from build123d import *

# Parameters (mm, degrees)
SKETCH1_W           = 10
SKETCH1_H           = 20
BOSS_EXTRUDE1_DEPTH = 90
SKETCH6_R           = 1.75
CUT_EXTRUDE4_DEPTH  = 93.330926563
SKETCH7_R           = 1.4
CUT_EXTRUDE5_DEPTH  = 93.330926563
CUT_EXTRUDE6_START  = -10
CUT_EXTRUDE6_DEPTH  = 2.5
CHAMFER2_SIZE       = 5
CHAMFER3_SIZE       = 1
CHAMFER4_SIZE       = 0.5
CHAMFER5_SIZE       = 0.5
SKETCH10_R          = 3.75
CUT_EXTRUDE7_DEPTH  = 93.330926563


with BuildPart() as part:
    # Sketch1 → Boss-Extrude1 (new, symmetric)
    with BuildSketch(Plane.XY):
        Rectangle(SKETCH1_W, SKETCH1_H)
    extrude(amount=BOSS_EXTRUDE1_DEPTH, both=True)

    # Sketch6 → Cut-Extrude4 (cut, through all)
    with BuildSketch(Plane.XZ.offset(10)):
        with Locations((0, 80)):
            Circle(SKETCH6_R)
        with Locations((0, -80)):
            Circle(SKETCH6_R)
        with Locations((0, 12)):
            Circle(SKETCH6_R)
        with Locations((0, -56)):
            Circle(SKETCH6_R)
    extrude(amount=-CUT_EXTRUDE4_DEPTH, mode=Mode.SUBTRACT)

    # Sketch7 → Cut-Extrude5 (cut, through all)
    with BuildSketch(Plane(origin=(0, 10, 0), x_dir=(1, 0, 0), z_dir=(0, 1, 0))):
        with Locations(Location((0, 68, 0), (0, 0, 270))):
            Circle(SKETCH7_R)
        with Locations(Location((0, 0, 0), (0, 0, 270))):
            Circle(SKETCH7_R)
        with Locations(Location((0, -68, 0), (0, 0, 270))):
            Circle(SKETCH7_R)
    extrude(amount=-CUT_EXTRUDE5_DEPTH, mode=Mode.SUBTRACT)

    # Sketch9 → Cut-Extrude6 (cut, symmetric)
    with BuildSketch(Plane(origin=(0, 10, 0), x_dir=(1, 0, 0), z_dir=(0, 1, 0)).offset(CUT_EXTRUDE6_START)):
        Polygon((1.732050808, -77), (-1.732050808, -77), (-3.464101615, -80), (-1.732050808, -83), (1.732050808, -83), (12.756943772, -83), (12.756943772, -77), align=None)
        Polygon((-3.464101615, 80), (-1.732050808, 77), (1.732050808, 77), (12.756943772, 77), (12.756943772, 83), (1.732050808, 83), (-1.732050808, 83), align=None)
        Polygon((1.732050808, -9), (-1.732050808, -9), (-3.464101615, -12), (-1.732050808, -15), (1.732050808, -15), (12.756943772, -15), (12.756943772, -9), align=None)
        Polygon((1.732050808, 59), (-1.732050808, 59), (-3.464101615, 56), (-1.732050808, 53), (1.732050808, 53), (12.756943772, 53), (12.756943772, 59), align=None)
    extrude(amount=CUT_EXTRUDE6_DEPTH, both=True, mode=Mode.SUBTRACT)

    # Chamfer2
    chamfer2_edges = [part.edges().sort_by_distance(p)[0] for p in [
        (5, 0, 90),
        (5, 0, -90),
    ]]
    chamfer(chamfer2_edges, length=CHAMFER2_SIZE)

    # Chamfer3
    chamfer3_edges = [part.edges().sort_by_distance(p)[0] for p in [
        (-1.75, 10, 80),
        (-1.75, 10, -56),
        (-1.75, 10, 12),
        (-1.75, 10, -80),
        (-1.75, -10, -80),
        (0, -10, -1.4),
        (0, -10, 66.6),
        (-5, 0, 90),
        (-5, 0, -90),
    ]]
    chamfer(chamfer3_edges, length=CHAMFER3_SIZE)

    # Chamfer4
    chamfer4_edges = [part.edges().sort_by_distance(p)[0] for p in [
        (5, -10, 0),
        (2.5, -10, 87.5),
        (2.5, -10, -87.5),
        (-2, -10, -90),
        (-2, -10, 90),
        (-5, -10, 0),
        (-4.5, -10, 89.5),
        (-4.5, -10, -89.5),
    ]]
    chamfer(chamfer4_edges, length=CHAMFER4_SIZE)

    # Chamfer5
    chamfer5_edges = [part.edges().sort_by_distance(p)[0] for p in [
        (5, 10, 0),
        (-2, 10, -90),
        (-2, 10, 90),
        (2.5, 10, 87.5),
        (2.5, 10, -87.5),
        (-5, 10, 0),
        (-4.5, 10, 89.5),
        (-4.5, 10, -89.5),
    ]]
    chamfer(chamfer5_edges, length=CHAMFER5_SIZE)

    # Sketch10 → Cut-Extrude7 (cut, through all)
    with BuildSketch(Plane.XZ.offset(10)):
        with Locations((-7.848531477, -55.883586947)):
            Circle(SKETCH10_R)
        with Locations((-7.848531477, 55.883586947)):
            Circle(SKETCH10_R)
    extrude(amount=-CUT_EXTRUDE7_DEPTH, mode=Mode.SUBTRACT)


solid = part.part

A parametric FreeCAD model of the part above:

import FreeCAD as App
import Part
import Sketcher

V = App.Vector
Q = App.Units.Quantity


def edges_at(feature, points):
    """Names of the edges that pass closest to the given points."""
    edges = feature.Shape.Edges
    near = lambda p: min(range(len(edges)), key=lambda i: edges[i].distToShape(Part.Vertex(*p))[0])
    return sorted({f"Edge{near(p) + 1}" for p in points})


def add_polygon(sketch, points):
    """Adds a closed chain of lines whose ends are joined by coincident constraints."""
    first, n = sketch.GeometryCount, len(points)
    for a, b in zip(points, points[1:] + points[:1]):
        sketch.addGeometry(Part.LineSegment(App.Vector(*a, 0), App.Vector(*b, 0)), False)
    for i in range(n):
        sketch.addConstraint(Sketcher.Constraint("Coincident", first + i, 2, first + (i + 1) % n, 1))

doc = App.newDocument("Part")
params = doc.addObject("Spreadsheet::Sheet", "Params")
for row, (alias, value) in enumerate([
    ("sketch1_width", "10 mm"),
    ("sketch1_height", "20 mm"),
    ("pad1_length", "180 mm"),
    ("sketch2_diameter", "3.5 mm"),
    ("sketch3_diameter", "2.8 mm"),
    ("sketch4_height", "6 mm"),
    ("pocket3_length", "5 mm"),
    ("chamfer_size", "5 mm"),
    ("chamfer2_size", "1 mm"),
    ("chamfer3_size", "0.5 mm"),
    ("chamfer4_size", "0.5 mm"),
    ("sketch5_diameter", "7.5 mm"),
], start=1):
    params.set(f"A{row}", alias)
    params.set(f"B{row}", "=" + value)
    params.setAlias(f"B{row}", alias)

body = doc.addObject("PartDesign::Body", "Body")

# Sketch on XY plane
sketch1 = body.newObject("Sketcher::SketchObject", "Sketch")
sketch1.AttachmentSupport = (doc.getObject("XY_Plane"), [""])
sketch1.MapMode = "FlatFace"
add_polygon(sketch1, [(-5, 10), (-5, -10), (5, -10), (5, 10)])  # lines 0-3
sketch1.addConstraint([
    Sketcher.Constraint("Vertical", 0),
    Sketcher.Constraint("Horizontal", 1),
    Sketcher.Constraint("Vertical", 2),
    Sketcher.Constraint("Horizontal", 3),
    Sketcher.Constraint("Symmetric", 0, 2, 2, 2, -1, 1),
    Sketcher.Constraint("DistanceX", 1, 1, 1, 2, Q("10 mm")),
    Sketcher.Constraint("DistanceY", 0, 2, 0, 1, Q("20 mm")),
])
sketch1.setExpression("Constraints[9]", "Params.sketch1_width")
sketch1.setExpression("Constraints[10]", "Params.sketch1_height")
pad1 = body.newObject("PartDesign::Pad", "Pad")
pad1.Profile = sketch1
pad1.setExpression("Length", "Params.pad1_length")
pad1.Midplane = True

# Sketch on XZ plane
sketch2 = body.newObject("Sketcher::SketchObject", "Sketch001")
sketch2.AttachmentSupport = (doc.getObject("XZ_Plane"), [""])
sketch2.MapMode = "FlatFace"
sketch2.AttachmentOffset = App.Placement(V(0, 0, 10), App.Rotation())
sketch2.addGeometry([
    Part.Circle(V(0, 80, 0), V(0, 0, 1), 1.8),
    Part.Circle(V(0, -80, 0), V(0, 0, 1), 1.8),
    Part.Circle(V(0, 12, 0), V(0, 0, 1), 1.8),
    Part.Circle(V(0, -56, 0), V(0, 0, 1), 1.8),
], False)
sketch2.addConstraint([
    Sketcher.Constraint("Equal", 0, 1),
    Sketcher.Constraint("Equal", 1, 2),
    Sketcher.Constraint("Equal", 2, 3),
    Sketcher.Constraint("Symmetric", 0, 3, 1, 3, -1, 1),
    Sketcher.Constraint("PointOnObject", 0, 3, -2),
    Sketcher.Constraint("PointOnObject", 2, 3, -2),
    Sketcher.Constraint("PointOnObject", 3, 3, -2),
    Sketcher.Constraint("Diameter", 0, Q("3.5 mm")),
    Sketcher.Constraint("DistanceY", -1, 1, 0, 3, Q("80 mm")),
    Sketcher.Constraint("DistanceY", -1, 1, 2, 3, Q("12 mm")),
    Sketcher.Constraint("DistanceY", 3, 3, -1, 1, Q("56 mm")),
])
sketch2.setExpression("Constraints[7]", "Params.sketch2_diameter")
pocket1 = body.newObject("PartDesign::Pocket", "Pocket")
pocket1.Profile = sketch2
pocket1.Type = "ThroughAll"

# Sketch on XZ plane
sketch3 = body.newObject("Sketcher::SketchObject", "Sketch002")
sketch3.AttachmentSupport = (doc.getObject("XZ_Plane"), [""])
sketch3.MapMode = "FlatFace"
sketch3.AttachmentOffset = App.Placement(V(0, 0, -10), App.Rotation())
sketch3.addGeometry([
    Part.Circle(V(0, -68, 0), V(0, 0, 1), 1.4),
    Part.Circle(V(0, 0, 0), V(0, 0, 1), 1.4),
    Part.Circle(V(0, 68, 0), V(0, 0, 1), 1.4),
], False)
sketch3.addConstraint([
    Sketcher.Constraint("Coincident", 1, 3, -1, 1),
    Sketcher.Constraint("Equal", 0, 1),
    Sketcher.Constraint("Equal", 1, 2),
    Sketcher.Constraint("Symmetric", 0, 3, 2, 3, -1, 1),
    Sketcher.Constraint("PointOnObject", 0, 3, -2),
    Sketcher.Constraint("Diameter", 0, Q("2.8 mm")),
    Sketcher.Constraint("DistanceY", 0, 3, -1, 1, Q("68 mm")),
])
sketch3.setExpression("Constraints[5]", "Params.sketch3_diameter")
pocket2 = body.newObject("PartDesign::Pocket", "Pocket001")
pocket2.Profile = sketch3
pocket2.Type = "ThroughAll"
pocket2.Reversed = True

# Sketch on XZ plane
sketch4 = body.newObject("Sketcher::SketchObject", "Sketch003")
sketch4.AttachmentSupport = (doc.getObject("XZ_Plane"), [""])
sketch4.MapMode = "FlatFace"
add_polygon(sketch4, [(-1.7, 77), (-3.5, 80), (-1.7, 83), (12.8, 83), (12.8, 77)])  # lines 0-4
add_polygon(sketch4, [(-3.5, -80), (-1.7, -77), (12.8, -77), (12.8, -83), (-1.7, -83)])  # lines 5-9
add_polygon(sketch4, [(-1.7, 9), (-3.5, 12), (-1.7, 15), (12.8, 15), (12.8, 9)])  # lines 10-14
add_polygon(sketch4, [(-1.7, -59), (-3.5, -56), (-1.7, -53), (12.8, -53), (12.8, -59)])  # lines 15-19
sketch4.addConstraint([
    Sketcher.Constraint("Horizontal", 2),
    Sketcher.Constraint("Vertical", 3),
    Sketcher.Constraint("Horizontal", 4),
    Sketcher.Constraint("Horizontal", 6),
    Sketcher.Constraint("Vertical", 7),
    Sketcher.Constraint("Horizontal", 8),
    Sketcher.Constraint("Horizontal", 12),
    Sketcher.Constraint("Vertical", 13),
    Sketcher.Constraint("Horizontal", 14),
    Sketcher.Constraint("Horizontal", 17),
    Sketcher.Constraint("Vertical", 18),
    Sketcher.Constraint("Horizontal", 19),
    Sketcher.Constraint("Symmetric", 4, 2, 5, 2, -1),
    Sketcher.Constraint("Symmetric", 2, 2, 7, 2, -1),
    Sketcher.Constraint("Symmetric", 0, 2, 9, 2, -1),
    Sketcher.Constraint("Parallel", 1, 5),
    Sketcher.Constraint("Parallel", 0, 9),
    Sketcher.Constraint("Parallel", 9, 10),
    Sketcher.Constraint("Parallel", 5, 11),
    Sketcher.Constraint("Parallel", 10, 15),
    Sketcher.Constraint("Parallel", 11, 16),
    Sketcher.Constraint("Vertical", 1, 2, 4, 2),
    Sketcher.Constraint("Vertical", 9, 2, 10, 2),
    Sketcher.Constraint("Vertical", 8, 2, 11, 2),
    Sketcher.Constraint("Vertical", 7, 2, 12, 2),
    Sketcher.Constraint("Vertical", 11, 2, 14, 2),
    Sketcher.Constraint("Vertical", 10, 2, 15, 2),
    Sketcher.Constraint("Vertical", 14, 2, 16, 2),
    Sketcher.Constraint("Vertical", 13, 2, 17, 2),
    Sketcher.Constraint("Vertical", 16, 2, 19, 2),
    Sketcher.Constraint("DistanceY", 3, 2, 3, 1, Q("6 mm")),
    Sketcher.Constraint("Angle", 0, Q("120 deg")),
    Sketcher.Constraint("DistanceY", -1, 1, 0, 2, Q("80 mm")),
    Sketcher.Constraint("DistanceY", -1, 1, 10, 2, Q("12 mm")),
    Sketcher.Constraint("DistanceY", 15, 2, -1, 1, Q("56 mm")),
    Sketcher.Constraint("DistanceX", 0, 2, -1, 1, Q("3.464102 mm")),
    Sketcher.Constraint("DistanceX", 2, 1, 2, 2, Q("14.488995 mm")),
])
sketch4.setExpression("Constraints[50]", "Params.sketch4_height")
pocket3 = body.newObject("PartDesign::Pocket", "Pocket002")
pocket3.Profile = sketch4
pocket3.setExpression("Length", "Params.pocket3_length")
pocket3.Midplane = True
doc.recompute()

chamfer = body.newObject("PartDesign::Chamfer", "Chamfer")
chamfer.Base = (pocket3, edges_at(pocket3, [(5, 0, 90), (5, 0, -90)]))
chamfer.setExpression("Size", "Params.chamfer_size")
doc.recompute()

chamfer2 = body.newObject("PartDesign::Chamfer", "Chamfer001")
chamfer2.Base = (chamfer, edges_at(chamfer, [
    (-1.75, 10, 80),
    (-1.75, 10, -56),
    (-1.75, 10, 12),
    (-1.75, 10, -80),
    (-1.75, -10, -80),
    (0, -10, -1.4),
    (0, -10, 66.6),
    (-5, 0, 90),
    (-5, 0, -90),
]))
chamfer2.setExpression("Size", "Params.chamfer2_size")
doc.recompute()

chamfer3 = body.newObject("PartDesign::Chamfer", "Chamfer002")
chamfer3.Base = (chamfer2, edges_at(chamfer2, [
    (5, -10, 0),
    (2.5, -10, 87.5),
    (2.5, -10, -87.5),
    (-2, -10, -90),
    (-2, -10, 90),
    (-5, -10, 0),
    (-4.5, -10, 89.5),
    (-4.5, -10, -89.5),
]))
chamfer3.setExpression("Size", "Params.chamfer3_size")
doc.recompute()

chamfer4 = body.newObject("PartDesign::Chamfer", "Chamfer003")
chamfer4.Base = (chamfer3, edges_at(chamfer3, [
    (5, 10, 0),
    (-2, 10, -90),
    (-2, 10, 90),
    (2.5, 10, 87.5),
    (2.5, 10, -87.5),
    (-5, 10, 0),
    (-4.5, 10, 89.5),
    (-4.5, 10, -89.5),
]))
chamfer4.setExpression("Size", "Params.chamfer4_size")

# Sketch on XZ plane
sketch5 = body.newObject("Sketcher::SketchObject", "Sketch004")
sketch5.AttachmentSupport = (doc.getObject("XZ_Plane"), [""])
sketch5.MapMode = "FlatFace"
sketch5.AttachmentOffset = App.Placement(V(0, 0, 10), App.Rotation())
sketch5.addGeometry([
    Part.Circle(V(-7.8, -55.9, 0), V(0, 0, 1), 3.8),
    Part.Circle(V(-7.8, 55.9, 0), V(0, 0, 1), 3.8),
], False)
sketch5.addConstraint([
    Sketcher.Constraint("Equal", 0, 1),
    Sketcher.Constraint("Symmetric", 0, 3, 1, 3, -1),
    Sketcher.Constraint("Diameter", 0, Q("7.5 mm")),
    Sketcher.Constraint("DistanceX", 0, 3, -1, 1, Q("7.848531 mm")),
    Sketcher.Constraint("DistanceY", 0, 3, -1, 1, Q("55.883587 mm")),
])
sketch5.setExpression("Constraints[2]", "Params.sketch5_diameter")
pocket4 = body.newObject("PartDesign::Pocket", "Pocket003")
pocket4.Profile = sketch5
pocket4.Type = "ThroughAll"

doc.recompute()
